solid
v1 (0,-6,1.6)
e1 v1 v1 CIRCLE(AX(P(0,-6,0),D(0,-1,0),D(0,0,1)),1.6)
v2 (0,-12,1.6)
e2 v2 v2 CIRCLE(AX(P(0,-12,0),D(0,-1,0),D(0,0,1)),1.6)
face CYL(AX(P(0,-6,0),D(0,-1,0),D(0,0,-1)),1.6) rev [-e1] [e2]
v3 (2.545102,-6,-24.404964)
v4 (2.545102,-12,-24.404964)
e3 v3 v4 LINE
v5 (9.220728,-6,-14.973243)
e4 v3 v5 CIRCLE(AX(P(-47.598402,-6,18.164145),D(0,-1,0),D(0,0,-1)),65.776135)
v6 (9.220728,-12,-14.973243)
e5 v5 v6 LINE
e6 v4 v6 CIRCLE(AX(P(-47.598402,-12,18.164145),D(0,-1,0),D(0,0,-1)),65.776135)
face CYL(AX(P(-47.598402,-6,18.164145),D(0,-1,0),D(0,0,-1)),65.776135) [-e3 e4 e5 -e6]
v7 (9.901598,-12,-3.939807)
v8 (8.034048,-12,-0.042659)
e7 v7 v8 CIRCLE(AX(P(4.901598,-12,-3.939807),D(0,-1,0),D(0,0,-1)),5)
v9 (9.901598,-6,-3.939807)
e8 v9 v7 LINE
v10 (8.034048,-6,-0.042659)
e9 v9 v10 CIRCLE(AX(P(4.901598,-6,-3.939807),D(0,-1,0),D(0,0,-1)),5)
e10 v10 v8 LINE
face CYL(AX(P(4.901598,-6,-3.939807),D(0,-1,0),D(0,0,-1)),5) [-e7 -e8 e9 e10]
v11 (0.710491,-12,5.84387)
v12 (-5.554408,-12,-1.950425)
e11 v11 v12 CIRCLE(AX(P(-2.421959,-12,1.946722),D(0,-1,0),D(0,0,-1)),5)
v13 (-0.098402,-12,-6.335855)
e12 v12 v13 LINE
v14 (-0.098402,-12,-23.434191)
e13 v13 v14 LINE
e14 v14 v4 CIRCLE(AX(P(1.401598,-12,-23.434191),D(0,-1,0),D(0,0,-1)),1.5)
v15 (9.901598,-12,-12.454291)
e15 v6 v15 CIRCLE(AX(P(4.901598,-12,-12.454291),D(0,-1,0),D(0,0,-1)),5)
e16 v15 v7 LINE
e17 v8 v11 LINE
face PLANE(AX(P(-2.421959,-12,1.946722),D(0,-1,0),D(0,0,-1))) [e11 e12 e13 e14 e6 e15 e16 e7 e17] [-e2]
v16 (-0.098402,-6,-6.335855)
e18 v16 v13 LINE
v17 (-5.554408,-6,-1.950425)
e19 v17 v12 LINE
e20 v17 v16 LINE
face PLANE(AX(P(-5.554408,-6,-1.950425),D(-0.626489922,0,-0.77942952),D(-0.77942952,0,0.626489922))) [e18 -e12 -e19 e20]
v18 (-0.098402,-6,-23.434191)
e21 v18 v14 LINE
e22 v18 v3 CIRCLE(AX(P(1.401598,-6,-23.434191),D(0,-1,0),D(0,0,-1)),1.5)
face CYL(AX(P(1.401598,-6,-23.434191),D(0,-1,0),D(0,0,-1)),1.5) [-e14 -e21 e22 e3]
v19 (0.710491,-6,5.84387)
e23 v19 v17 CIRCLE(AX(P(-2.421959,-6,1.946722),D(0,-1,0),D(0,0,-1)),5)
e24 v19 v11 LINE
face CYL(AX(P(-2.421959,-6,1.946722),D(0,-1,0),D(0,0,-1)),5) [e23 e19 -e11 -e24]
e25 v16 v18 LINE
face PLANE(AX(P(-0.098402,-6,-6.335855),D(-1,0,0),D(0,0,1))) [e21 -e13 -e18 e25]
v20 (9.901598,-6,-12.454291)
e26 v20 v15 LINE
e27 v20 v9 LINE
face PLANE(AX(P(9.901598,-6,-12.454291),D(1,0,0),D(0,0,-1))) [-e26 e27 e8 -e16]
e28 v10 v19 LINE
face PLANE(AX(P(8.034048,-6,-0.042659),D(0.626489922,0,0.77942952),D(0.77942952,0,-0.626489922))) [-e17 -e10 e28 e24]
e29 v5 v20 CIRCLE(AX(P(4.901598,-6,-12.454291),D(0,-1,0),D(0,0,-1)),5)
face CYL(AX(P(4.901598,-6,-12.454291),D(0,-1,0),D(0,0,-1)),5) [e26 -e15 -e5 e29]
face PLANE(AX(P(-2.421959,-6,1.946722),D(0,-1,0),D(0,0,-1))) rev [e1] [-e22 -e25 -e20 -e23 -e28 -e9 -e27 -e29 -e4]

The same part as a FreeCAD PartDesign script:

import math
import FreeCAD as App
import Part
import Sketcher

doc = App.newDocument("Part")
body = doc.addObject("PartDesign::Body", "Body")

# Sketch on XZ plane
sketch1 = body.newObject("Sketcher::SketchObject", "Sketch")
sketch1.AttachmentSupport = (doc.getObject("XZ_Plane"), [""])
sketch1.MapMode = "FlatFace"
sketch1.AttachmentOffset = App.Placement(App.Vector(0, 0, 12), App.Rotation())
sketch1.addGeometry([
    Part.LineSegment(App.Vector(-5.6, -2, 0), App.Vector(-0.1, -6.3, 0)),  # 0
    Part.LineSegment(App.Vector(-0.1, -6.3, 0), App.Vector(-0.1, -23.4, 0)),  # 1
    Part.ArcOfCircle(Part.Circle(App.Vector(1.4, -23.4, 0), App.Vector(0, 0, 1), 1.5), math.radians(180), math.radians(320)),  # 2
    Part.ArcOfCircle(Part.Circle(App.Vector(-47.6, 18.2, 0), App.Vector(0, 0, 1), 65.8), math.radians(-40.33), math.radians(-30.25)),  # 3
    Part.ArcOfCircle(Part.Circle(App.Vector(4.9, -12.5, 0), App.Vector(0, 0, 1), 5), math.radians(-30), math.radians(0)),  # 4
    Part.LineSegment(App.Vector(9.9, -12.5, 0), App.Vector(9.9, -3.9, 0)),  # 5
    Part.ArcOfCircle(Part.Circle(App.Vector(4.9, -3.9, 0), App.Vector(0, 0, 1), 5), math.radians(0), math.radians(51)),  # 6
    Part.LineSegment(App.Vector(8, 0, 0), App.Vector(0.7, 5.8, 0)),  # 7
    Part.ArcOfCircle(Part.Circle(App.Vector(-2.4, 1.9, 0), App.Vector(0, 0, 1), 5), math.radians(51), math.radians(231)),  # 8
    Part.Circle(App.Vector(0, 0, 0), App.Vector(0, 0, 1), 1.6),  # 9
], False)
sketch1.addConstraint([
    Sketcher.Constraint("Coincident", 0, 2, 1, 1),
    Sketcher.Constraint("Tangent", 1, 2, 2, 1),
    Sketcher.Constraint("Tangent", 2, 2, 3, 1),
    Sketcher.Constraint("Tangent", 3, 2, 4, 1),
    Sketcher.Constraint("Tangent", 4, 2, 5, 1),
    Sketcher.Constraint("Tangent", 5, 2, 6, 1),
    Sketcher.Constraint("Tangent", 6, 2, 7, 1),
    Sketcher.Constraint("Tangent", 7, 2, 8, 1),
    Sketcher.Constraint("Tangent", 8, 2, 0, 1),
    Sketcher.Constraint("Vertical", 1),
    Sketcher.Constraint("Vertical", 5),
    Sketcher.Constraint("Coincident", 9, 3, -1, 1),
    Sketcher.Constraint("Equal", 4, 6),
    Sketcher.Constraint("Equal", 6, 8),
    Sketcher.Constraint("Parallel", 0, 7),
    Sketcher.Constraint("Radius", 4, 5.0),
    Sketcher.Constraint("Diameter", 9, 3.2),
    Sketcher.Constraint("Radius", 2, 1.5),
    Sketcher.Constraint("Distance", 0, 7.0),
    Sketcher.Constraint("DistanceX", 3, 3, 2, 3, 49.0),
    Sketcher.Constraint("DistanceX", 0, 2, 6, 3, 5.0),
    Sketcher.Constraint("Radius", 3, 65.776136),
    Sketcher.Constraint("DistanceX", -1, 1, 2, 3, 1.401598),
    Sketcher.Constraint("DistanceX", 8, 2, 7, 2, 6.264899),
    Sketcher.Constraint("DistanceY", 1, 2, 1, 1, 17.098336),
    Sketcher.Constraint("DistanceY", 2, 3, -1, 1, 23.434191),
])
pad1 = body.newObject("PartDesign::Pad", "Pad")
pad1.Profile = sketch1
pad1.Length = 6
pad1.Reversed = True

doc.recompute()
